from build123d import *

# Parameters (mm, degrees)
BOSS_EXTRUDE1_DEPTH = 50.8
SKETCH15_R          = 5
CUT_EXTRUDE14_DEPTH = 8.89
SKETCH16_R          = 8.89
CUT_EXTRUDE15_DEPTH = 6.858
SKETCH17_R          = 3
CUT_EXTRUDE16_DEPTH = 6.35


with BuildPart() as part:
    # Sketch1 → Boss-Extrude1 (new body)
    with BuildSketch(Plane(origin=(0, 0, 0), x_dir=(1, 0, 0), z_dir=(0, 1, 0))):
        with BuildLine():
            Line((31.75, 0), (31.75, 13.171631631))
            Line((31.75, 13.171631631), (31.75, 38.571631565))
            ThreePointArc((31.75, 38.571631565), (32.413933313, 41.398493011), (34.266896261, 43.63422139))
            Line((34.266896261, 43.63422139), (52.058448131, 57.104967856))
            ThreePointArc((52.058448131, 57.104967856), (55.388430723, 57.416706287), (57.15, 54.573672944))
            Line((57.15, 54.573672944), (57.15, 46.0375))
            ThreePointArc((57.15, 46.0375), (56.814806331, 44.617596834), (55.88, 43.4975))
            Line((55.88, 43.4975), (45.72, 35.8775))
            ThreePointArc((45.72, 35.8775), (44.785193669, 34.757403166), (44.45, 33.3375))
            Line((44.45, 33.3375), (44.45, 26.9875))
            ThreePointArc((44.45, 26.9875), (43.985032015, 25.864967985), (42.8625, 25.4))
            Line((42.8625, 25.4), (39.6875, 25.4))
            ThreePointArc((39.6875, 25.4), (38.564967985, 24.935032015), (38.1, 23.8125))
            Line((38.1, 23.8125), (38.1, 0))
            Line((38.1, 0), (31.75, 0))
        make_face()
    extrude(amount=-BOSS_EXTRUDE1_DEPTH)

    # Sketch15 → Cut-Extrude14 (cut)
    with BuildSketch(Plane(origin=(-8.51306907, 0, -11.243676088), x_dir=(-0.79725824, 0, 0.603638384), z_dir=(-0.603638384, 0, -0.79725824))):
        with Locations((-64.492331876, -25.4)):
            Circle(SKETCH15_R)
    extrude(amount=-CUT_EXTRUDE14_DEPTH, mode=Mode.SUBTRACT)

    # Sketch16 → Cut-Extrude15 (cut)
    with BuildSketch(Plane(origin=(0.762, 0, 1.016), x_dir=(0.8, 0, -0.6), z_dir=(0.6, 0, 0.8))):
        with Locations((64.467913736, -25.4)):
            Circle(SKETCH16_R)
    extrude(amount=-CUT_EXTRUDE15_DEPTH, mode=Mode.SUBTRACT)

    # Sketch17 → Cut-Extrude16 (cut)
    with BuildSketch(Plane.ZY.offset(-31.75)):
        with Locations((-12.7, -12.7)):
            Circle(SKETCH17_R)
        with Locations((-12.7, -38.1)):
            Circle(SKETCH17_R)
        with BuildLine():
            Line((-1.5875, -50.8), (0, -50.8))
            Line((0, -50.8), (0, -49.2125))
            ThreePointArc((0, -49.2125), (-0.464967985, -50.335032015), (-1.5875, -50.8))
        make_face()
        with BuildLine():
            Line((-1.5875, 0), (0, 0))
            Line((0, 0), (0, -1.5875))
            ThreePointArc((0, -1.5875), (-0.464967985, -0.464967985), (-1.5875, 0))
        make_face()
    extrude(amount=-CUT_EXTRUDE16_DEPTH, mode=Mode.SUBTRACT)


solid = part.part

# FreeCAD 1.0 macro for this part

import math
import FreeCAD as App
import Part
import Sketcher
from FreeCAD import Vector
Q = App.Units.Quantity

doc = App.newDocument("Part")
body = doc.addObject("PartDesign::Body", "Body")

sketch1 = body.newObject("Sketcher::SketchObject", "Sketch")
sketch1.AttachmentSupport = (doc.getObject("XZ_Plane"), [""])
sketch1.MapMode = "FlatFace"
sketch1.addGeometry([
    Part.LineSegment(Vector(31.8, -38.6, 0), Vector(31.8, 0, 0)),
    Part.LineSegment(Vector(31.8, 0, 0), Vector(38.1, 0, 0)),
    Part.LineSegment(Vector(38.1, 0, 0), Vector(38.1, -23.8, 0)),
    Part.ArcOfCircle(Part.Circle(Vector(39.7, -23.8, 0), Vector(0, 0, 1), 1.6), math.radians(180), math.radians(270)),
    Part.LineSegment(Vector(39.7, -25.4, 0), Vector(42.9, -25.4, 0)),
    Part.ArcOfCircle(Part.Circle(Vector(42.9, -27, 0), Vector(0, 0, 1), 1.6), math.radians(0), math.radians(90)),
    Part.LineSegment(Vector(44.5, -27, 0), Vector(44.5, -33.3, 0)),
    Part.ArcOfCircle(Part.Circle(Vector(47.6, -33.3, 0), Vector(0, 0, 1), 3.2), math.radians(-180), math.radians(-127)),
    Part.LineSegment(Vector(45.7, -35.9, 0), Vector(55.9, -43.5, 0)),
    Part.ArcOfCircle(Part.Circle(Vector(54, -46, 0), Vector(0, 0, 1), 3.2), math.radians(0), math.radians(53)),
    Part.LineSegment(Vector(57.1, -46, 0), Vector(57.1, -54.6, 0)),
    Part.ArcOfCircle(Part.Circle(Vector(54, -54.6, 0), Vector(0, 0, 1), 3.2), math.radians(-127), math.radians(0)),
    Part.LineSegment(Vector(52.1, -57.1, 0), Vector(34.3, -43.6, 0)),
    Part.ArcOfCircle(Part.Circle(Vector(38.1, -38.6, 0), Vector(0, 0, 1), 6.4), math.radians(180), math.radians(233)),
], False)
sketch1.addConstraint([
    Sketcher.Constraint("Coincident", 0, 2, 1, 1),
    Sketcher.Constraint("Coincident", 1, 2, 2, 1),
    Sketcher.Constraint("Tangent", 2, 2, 3, 1),
    Sketcher.Constraint("Tangent", 3, 2, 4, 1),
    Sketcher.Constraint("Tangent", 4, 2, 5, 2),
    Sketcher.Constraint("Tangent", 5, 1, 6, 1),
    Sketcher.Constraint("Tangent", 6, 2, 7, 1),
    Sketcher.Constraint("Tangent", 7, 2, 8, 1),
    Sketcher.Constraint("Tangent", 8, 2, 9, 2),
    Sketcher.Constraint("Tangent", 9, 1, 10, 1),
    Sketcher.Constraint("Tangent", 10, 2, 11, 2),
    Sketcher.Constraint("Tangent", 11, 1, 12, 1),
    Sketcher.Constraint("Tangent", 12, 2, 13, 2),
    Sketcher.Constraint("Tangent", 13, 1, 0, 1),
    Sketcher.Constraint("Vertical", 0),
    Sketcher.Constraint("Horizontal", 1),
    Sketcher.Constraint("Vertical", 2),
    Sketcher.Constraint("Horizontal", 4),
    Sketcher.Constraint("Vertical", 6),
    Sketcher.Constraint("Vertical", 10),
    Sketcher.Constraint("Equal", 3, 5),
    Sketcher.Constraint("Equal", 7, 9),
    Sketcher.Constraint("Equal", 9, 11),
    Sketcher.Constraint("PointOnObject", 0, 2, -1),
    Sketcher.Constraint("Vertical", 13, 3, 1, 2),
    Sketcher.Constraint("Equal", 1, 6),
    Sketcher.Constraint("Radius", 13, Q("0.25 in")),
    Sketcher.Constraint("DistanceY", 3, 2, -1, 1, Q("1 in")),
    Sketcher.Constraint("Radius", 3, Q("0.0625 in")),
    Sketcher.Constraint("Radius", 7, Q("0.125 in")),
    Sketcher.Constraint("Distance", 8, Q("0.5 in")),
    Sketcher.Constraint("DistanceX", -1, 1, 13, 3, Q("1.5 in")),
    Sketcher.Constraint("DistanceX", -1, 1, 7, 2, Q("1.8 in")),
    Sketcher.Constraint("DistanceX", -1, 1, 8, 2, Q("2.2 in")),
    Sketcher.Constraint("DistanceY", 0, 1, 0, 2, Q("38.571632 mm")),
    Sketcher.Constraint("Distance", 12, Q("22.315921 mm")),
])
pad1 = body.newObject("PartDesign::Pad", "Pad")
pad1.Profile = sketch1
pad1.Length = Q("2 in")

sketch2 = body.newObject("Sketcher::SketchObject", "Sketch001")
sketch2.Placement = App.Placement(Vector(-8.513069, 0, -11.243676), App.Rotation(Vector(-0.79725824, 0, 0.603638384), Vector(0, 1, 0), Vector(-0.603638384, 0, -0.79725824), "ZXY"))
sketch2.addGeometry(Part.Circle(Vector(-64, -25, 0), Vector(0, 0, 1), 5), False)
sketch2.addConstraint([
    Sketcher.Constraint("DistanceY", 0, 3, -1, 1, Q("1 in")),
    Sketcher.Constraint("Diameter", 0, Q("10 mm")),
    Sketcher.Constraint("DistanceX", 0, 3, -1, 1, Q("64.492332 mm")),
])
pocket1 = body.newObject("PartDesign::Pocket", "Pocket")
pocket1.Profile = sketch2
pocket1.Length = Q("0.35 in")

sketch3 = body.newObject("Sketcher::SketchObject", "Sketch002")
sketch3.Placement = App.Placement(Vector(0.762, 0, 1.016), App.Rotation(Vector(0.8, 0, -0.6), Vector(0, 1, 0), Vector(0.6, 0, 0.8), "ZXY"))
sketch3.addGeometry(Part.Circle(Vector(64, -25, 0), Vector(0, 0, 1), 9), False)
sketch3.addConstraint([
    Sketcher.Constraint("Diameter", 0, Q("0.7 in")),
    Sketcher.Constraint("DistanceY", 0, 3, -1, 1, Q("1 in")),
    Sketcher.Constraint("DistanceX", -1, 1, 0, 3, Q("64.467914 mm")),
])
pocket2 = body.newObject("PartDesign::Pocket", "Pocket001")
pocket2.Profile = sketch3
pocket2.Length = Q("0.27 in")

sketch4 = body.newObject("Sketcher::SketchObject", "Sketch003")
sketch4.AttachmentSupport = (doc.getObject("YZ_Plane"), [""])
sketch4.MapMode = "FlatFace"
sketch4.AttachmentOffset = App.Placement(Vector(0, 0, 1.25 * 25.4), App.Rotation())
sketch4.addGeometry([
    Part.Circle(Vector(-12.7, -12.7, 0), Vector(0, 0, 1), 3),
    Part.Circle(Vector(-38.1, -12.7, 0), Vector(0, 0, 1), 3),
    Part.LineSegment(Vector(-50.8, -1.6, 0), Vector(-50.8, 0, 0)),
    Part.LineSegment(Vector(-50.8, 0, 0), Vector(-49.2, 0, 0)),
    Part.ArcOfCircle(Part.Circle(Vector(-49.2, -1.6, 0), Vector(0, 0, 1), 1.6), math.radians(90), math.radians(180)),
    Part.LineSegment(Vector(0, 0, 0), Vector(0, -1.6, 0)),
    Part.ArcOfCircle(Part.Circle(Vector(-1.6, -1.6, 0), Vector(0, 0, 1), 1.6), math.radians(0), math.radians(90)),
    Part.LineSegment(Vector(-1.6, 0, 0), Vector(0, 0, 0)),
], False)
sketch4.addConstraint([
    Sketcher.Constraint("Coincident", 2, 2, 3, 1),
    Sketcher.Constraint("Tangent", 3, 2, 4, 1),
    Sketcher.Constraint("Tangent", 4, 2, 2, 1),
    Sketcher.Constraint("Tangent", 5, 2, 6, 1),
    Sketcher.Constraint("Tangent", 6, 2, 7, 1),
    Sketcher.Constraint("Coincident", 7, 2, 5, 1),
    Sketcher.Constraint("Vertical", 2),
    Sketcher.Constraint("Horizontal", 3),
    Sketcher.Constraint("Vertical", 5),
    Sketcher.Constraint("Horizontal", 7),
    Sketcher.Constraint("Coincident", 7, 2, -1, 1),
    Sketcher.Constraint("Equal", 0, 1),
    Sketcher.Constraint("Equal", 4, 6),
    Sketcher.Constraint("PointOnObject", 2, 2, -1),
    Sketcher.Constraint("Horizontal", 0, 3, 1, 3),
    Sketcher.Constraint("DistanceX", 2, 2, -1, 1, Q("2 in")),
    Sketcher.Constraint("Radius", 4, Q("0.0625 in")),
    Sketcher.Constraint("DistanceX", 1, 3, 0, 3, Q("1 in")),
    Sketcher.Constraint("DistanceX", 0, 3, -1, 1, Q("0.5 in")),
    Sketcher.Constraint("DistanceY", 0, 3, -1, 1, Q("0.5 in")),
    Sketcher.Constraint("Diameter", 0, Q("6 mm")),
])
pocket3 = body.newObject("PartDesign::Pocket", "Pocket002")
pocket3.Profile = sketch4
pocket3.Length = Q("0.25 in")
pocket3.Reversed = True

doc.recompute()
